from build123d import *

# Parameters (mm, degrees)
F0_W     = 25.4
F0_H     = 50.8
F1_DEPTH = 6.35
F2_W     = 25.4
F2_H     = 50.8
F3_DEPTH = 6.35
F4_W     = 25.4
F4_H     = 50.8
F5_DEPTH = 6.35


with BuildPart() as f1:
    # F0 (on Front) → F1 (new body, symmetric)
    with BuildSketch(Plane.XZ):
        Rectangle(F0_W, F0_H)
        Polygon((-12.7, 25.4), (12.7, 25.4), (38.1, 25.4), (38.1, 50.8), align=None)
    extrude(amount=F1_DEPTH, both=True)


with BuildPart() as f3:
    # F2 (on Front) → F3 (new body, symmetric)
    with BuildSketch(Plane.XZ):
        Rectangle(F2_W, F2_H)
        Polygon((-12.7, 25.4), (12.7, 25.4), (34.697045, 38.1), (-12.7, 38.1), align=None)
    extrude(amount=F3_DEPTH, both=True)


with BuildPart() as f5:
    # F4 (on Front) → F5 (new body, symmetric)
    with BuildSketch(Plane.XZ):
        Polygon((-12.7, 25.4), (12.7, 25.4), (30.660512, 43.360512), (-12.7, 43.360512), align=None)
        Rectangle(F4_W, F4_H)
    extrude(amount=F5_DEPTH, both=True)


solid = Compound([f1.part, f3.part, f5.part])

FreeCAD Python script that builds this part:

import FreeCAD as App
import Part
import Sketcher
Q = App.Units.Quantity

doc = App.newDocument("Part")
body = doc.addObject("PartDesign::Body", "Body")

# Sketch on XZ plane
sketch1 = body.newObject("Sketcher::SketchObject", "Sketch")
sketch1.AttachmentSupport = (doc.getObject("XZ_Plane"), [""])
sketch1.MapMode = "FlatFace"
sketch1.addGeometry([
    Part.LineSegment(App.Vector(-13, 25, 0), App.Vector(-13, -25, 0)),  # 0
    Part.LineSegment(App.Vector(-13, -25, 0), App.Vector(13, -25, 0)),  # 1
    Part.LineSegment(App.Vector(13, -25, 0), App.Vector(13, 25, 0)),  # 2
    Part.LineSegment(App.Vector(13, 25, 0), App.Vector(38, 25, 0)),  # 3
    Part.LineSegment(App.Vector(38, 25, 0), App.Vector(38, 51, 0)),  # 4
    Part.LineSegment(App.Vector(38, 51, 0), App.Vector(-13, 25, 0)),  # 5
], False)
sketch1.addConstraint([
    Sketcher.Constraint("Coincident", 0, 2, 1, 1),
    Sketcher.Constraint("Coincident", 1, 2, 2, 1),
    Sketcher.Constraint("Coincident", 2, 2, 3, 1),
    Sketcher.Constraint("Coincident", 3, 2, 4, 1),
    Sketcher.Constraint("Coincident", 4, 2, 5, 1),
    Sketcher.Constraint("Coincident", 5, 2, 0, 1),
    Sketcher.Constraint("Vertical", 0),
    Sketcher.Constraint("Horizontal", 1),
    Sketcher.Constraint("Vertical", 2),
    Sketcher.Constraint("Horizontal", 3),
    Sketcher.Constraint("Vertical", 4),
    Sketcher.Constraint("Symmetric", 0, 2, 2, 2, -1, 1),
    Sketcher.Constraint("Horizontal", 3, 2, 5, 2),
    Sketcher.Constraint("Equal", 1, 3),
    Sketcher.Constraint("Equal", 3, 4),
    Sketcher.Constraint("DistanceX", 1, 1, 1, 2, Q("1 in")),
    Sketcher.Constraint("DistanceY", 0, 2, 0, 1, Q("2 in")),
])
pad1 = body.newObject("PartDesign::Pad", "Pad")
pad1.Profile = sketch1
pad1.Length = Q("0.5 in")
pad1.Midplane = True
body2 = doc.addObject("PartDesign::Body", "Body001")

# Sketch on XZ plane
sketch2 = body2.newObject("Sketcher::SketchObject", "Sketch001")
sketch2.AttachmentSupport = (doc.getObject("XZ_Plane001"), [""])
sketch2.MapMode = "FlatFace"
sketch2.addGeometry([
    Part.LineSegment(App.Vector(-13, -25, 0), App.Vector(13, -25, 0)),  # 0
    Part.LineSegment(App.Vector(13, -25, 0), App.Vector(13, 25, 0)),  # 1
    Part.LineSegment(App.Vector(13, 25, 0), App.Vector(35, 38, 0)),  # 2
    Part.LineSegment(App.Vector(35, 38, 0), App.Vector(-13, 38, 0)),  # 3
    Part.LineSegment(App.Vector(-13, 38, 0), App.Vector(-13, -25, 0)),  # 4
], False)
sketch2.addConstraint([
    Sketcher.Constraint("Coincident", 0, 2, 1, 1),
    Sketcher.Constraint("Coincident", 1, 2, 2, 1),
    Sketcher.Constraint("Coincident", 2, 2, 3, 1),
    Sketcher.Constraint("Coincident", 3, 2, 4, 1),
    Sketcher.Constraint("Coincident", 4, 2, 0, 1),
    Sketcher.Constraint("Horizontal", 0),
    Sketcher.Constraint("Vertical", 1),
    Sketcher.Constraint("Horizontal", 3),
    Sketcher.Constraint("Vertical", 4),
    Sketcher.Constraint("Symmetric", 1, 2, 4, 2, -1, 1),
    Sketcher.Constraint("DistanceX", 0, 1, 0, 2, Q("1 in")),
    Sketcher.Constraint("DistanceY", 1, 1, 1, 2, Q("2 in")),
    Sketcher.Constraint("Distance", 2, Q("1 in")),
    Sketcher.Constraint("DistanceY", 4, 2, 4, 1, Q("2.5 in")),
])
pad2 = body2.newObject("PartDesign::Pad", "Pad001")
pad2.Profile = sketch2
pad2.Length = Q("0.5 in")
pad2.Midplane = True
body3 = doc.addObject("PartDesign::Body", "Body002")

# Sketch on XZ plane
sketch3 = body3.newObject("Sketcher::SketchObject", "Sketch002")
sketch3.AttachmentSupport = (doc.getObject("XZ_Plane002"), [""])
sketch3.MapMode = "FlatFace"
sketch3.addGeometry([
    Part.LineSegment(App.Vector(13, 25, 0), App.Vector(31, 43, 0)),  # 0
    Part.LineSegment(App.Vector(31, 43, 0), App.Vector(-13, 43, 0)),  # 1
    Part.LineSegment(App.Vector(-13, 43, 0), App.Vector(-13, -25, 0)),  # 2
    Part.LineSegment(App.Vector(-13, -25, 0), App.Vector(13, -25, 0)),  # 3
    Part.LineSegment(App.Vector(13, -25, 0), App.Vector(13, 25, 0)),  # 4
], False)
sketch3.addConstraint([
    Sketcher.Constraint("Coincident", 0, 2, 1, 1),
    Sketcher.Constraint("Coincident", 1, 2, 2, 1),
    Sketcher.Constraint("Coincident", 2, 2, 3, 1),
    Sketcher.Constraint("Coincident", 3, 2, 4, 1),
    Sketcher.Constraint("Coincident", 4, 2, 0, 1),
    Sketcher.Constraint("Horizontal", 1),
    Sketcher.Constraint("Vertical", 2),
    Sketcher.Constraint("Horizontal", 3),
    Sketcher.Constraint("Vertical", 4),
    Sketcher.Constraint("Symmetric", 2, 2, 4, 2, -1, 1),
    Sketcher.Constraint("DistanceX", 3, 1, 3, 2, Q("1 in")),
    Sketcher.Constraint("DistanceY", 4, 1, 4, 2, Q("2 in")),
    Sketcher.Constraint("Distance", 0, Q("1 in")),
    Sketcher.Constraint("Angle", 0, Q("45 deg")),
])
pad3 = body3.newObject("PartDesign::Pad", "Pad002")
pad3.Profile = sketch3
pad3.Length = Q("0.5 in")
pad3.Midplane = True

doc.recompute()
